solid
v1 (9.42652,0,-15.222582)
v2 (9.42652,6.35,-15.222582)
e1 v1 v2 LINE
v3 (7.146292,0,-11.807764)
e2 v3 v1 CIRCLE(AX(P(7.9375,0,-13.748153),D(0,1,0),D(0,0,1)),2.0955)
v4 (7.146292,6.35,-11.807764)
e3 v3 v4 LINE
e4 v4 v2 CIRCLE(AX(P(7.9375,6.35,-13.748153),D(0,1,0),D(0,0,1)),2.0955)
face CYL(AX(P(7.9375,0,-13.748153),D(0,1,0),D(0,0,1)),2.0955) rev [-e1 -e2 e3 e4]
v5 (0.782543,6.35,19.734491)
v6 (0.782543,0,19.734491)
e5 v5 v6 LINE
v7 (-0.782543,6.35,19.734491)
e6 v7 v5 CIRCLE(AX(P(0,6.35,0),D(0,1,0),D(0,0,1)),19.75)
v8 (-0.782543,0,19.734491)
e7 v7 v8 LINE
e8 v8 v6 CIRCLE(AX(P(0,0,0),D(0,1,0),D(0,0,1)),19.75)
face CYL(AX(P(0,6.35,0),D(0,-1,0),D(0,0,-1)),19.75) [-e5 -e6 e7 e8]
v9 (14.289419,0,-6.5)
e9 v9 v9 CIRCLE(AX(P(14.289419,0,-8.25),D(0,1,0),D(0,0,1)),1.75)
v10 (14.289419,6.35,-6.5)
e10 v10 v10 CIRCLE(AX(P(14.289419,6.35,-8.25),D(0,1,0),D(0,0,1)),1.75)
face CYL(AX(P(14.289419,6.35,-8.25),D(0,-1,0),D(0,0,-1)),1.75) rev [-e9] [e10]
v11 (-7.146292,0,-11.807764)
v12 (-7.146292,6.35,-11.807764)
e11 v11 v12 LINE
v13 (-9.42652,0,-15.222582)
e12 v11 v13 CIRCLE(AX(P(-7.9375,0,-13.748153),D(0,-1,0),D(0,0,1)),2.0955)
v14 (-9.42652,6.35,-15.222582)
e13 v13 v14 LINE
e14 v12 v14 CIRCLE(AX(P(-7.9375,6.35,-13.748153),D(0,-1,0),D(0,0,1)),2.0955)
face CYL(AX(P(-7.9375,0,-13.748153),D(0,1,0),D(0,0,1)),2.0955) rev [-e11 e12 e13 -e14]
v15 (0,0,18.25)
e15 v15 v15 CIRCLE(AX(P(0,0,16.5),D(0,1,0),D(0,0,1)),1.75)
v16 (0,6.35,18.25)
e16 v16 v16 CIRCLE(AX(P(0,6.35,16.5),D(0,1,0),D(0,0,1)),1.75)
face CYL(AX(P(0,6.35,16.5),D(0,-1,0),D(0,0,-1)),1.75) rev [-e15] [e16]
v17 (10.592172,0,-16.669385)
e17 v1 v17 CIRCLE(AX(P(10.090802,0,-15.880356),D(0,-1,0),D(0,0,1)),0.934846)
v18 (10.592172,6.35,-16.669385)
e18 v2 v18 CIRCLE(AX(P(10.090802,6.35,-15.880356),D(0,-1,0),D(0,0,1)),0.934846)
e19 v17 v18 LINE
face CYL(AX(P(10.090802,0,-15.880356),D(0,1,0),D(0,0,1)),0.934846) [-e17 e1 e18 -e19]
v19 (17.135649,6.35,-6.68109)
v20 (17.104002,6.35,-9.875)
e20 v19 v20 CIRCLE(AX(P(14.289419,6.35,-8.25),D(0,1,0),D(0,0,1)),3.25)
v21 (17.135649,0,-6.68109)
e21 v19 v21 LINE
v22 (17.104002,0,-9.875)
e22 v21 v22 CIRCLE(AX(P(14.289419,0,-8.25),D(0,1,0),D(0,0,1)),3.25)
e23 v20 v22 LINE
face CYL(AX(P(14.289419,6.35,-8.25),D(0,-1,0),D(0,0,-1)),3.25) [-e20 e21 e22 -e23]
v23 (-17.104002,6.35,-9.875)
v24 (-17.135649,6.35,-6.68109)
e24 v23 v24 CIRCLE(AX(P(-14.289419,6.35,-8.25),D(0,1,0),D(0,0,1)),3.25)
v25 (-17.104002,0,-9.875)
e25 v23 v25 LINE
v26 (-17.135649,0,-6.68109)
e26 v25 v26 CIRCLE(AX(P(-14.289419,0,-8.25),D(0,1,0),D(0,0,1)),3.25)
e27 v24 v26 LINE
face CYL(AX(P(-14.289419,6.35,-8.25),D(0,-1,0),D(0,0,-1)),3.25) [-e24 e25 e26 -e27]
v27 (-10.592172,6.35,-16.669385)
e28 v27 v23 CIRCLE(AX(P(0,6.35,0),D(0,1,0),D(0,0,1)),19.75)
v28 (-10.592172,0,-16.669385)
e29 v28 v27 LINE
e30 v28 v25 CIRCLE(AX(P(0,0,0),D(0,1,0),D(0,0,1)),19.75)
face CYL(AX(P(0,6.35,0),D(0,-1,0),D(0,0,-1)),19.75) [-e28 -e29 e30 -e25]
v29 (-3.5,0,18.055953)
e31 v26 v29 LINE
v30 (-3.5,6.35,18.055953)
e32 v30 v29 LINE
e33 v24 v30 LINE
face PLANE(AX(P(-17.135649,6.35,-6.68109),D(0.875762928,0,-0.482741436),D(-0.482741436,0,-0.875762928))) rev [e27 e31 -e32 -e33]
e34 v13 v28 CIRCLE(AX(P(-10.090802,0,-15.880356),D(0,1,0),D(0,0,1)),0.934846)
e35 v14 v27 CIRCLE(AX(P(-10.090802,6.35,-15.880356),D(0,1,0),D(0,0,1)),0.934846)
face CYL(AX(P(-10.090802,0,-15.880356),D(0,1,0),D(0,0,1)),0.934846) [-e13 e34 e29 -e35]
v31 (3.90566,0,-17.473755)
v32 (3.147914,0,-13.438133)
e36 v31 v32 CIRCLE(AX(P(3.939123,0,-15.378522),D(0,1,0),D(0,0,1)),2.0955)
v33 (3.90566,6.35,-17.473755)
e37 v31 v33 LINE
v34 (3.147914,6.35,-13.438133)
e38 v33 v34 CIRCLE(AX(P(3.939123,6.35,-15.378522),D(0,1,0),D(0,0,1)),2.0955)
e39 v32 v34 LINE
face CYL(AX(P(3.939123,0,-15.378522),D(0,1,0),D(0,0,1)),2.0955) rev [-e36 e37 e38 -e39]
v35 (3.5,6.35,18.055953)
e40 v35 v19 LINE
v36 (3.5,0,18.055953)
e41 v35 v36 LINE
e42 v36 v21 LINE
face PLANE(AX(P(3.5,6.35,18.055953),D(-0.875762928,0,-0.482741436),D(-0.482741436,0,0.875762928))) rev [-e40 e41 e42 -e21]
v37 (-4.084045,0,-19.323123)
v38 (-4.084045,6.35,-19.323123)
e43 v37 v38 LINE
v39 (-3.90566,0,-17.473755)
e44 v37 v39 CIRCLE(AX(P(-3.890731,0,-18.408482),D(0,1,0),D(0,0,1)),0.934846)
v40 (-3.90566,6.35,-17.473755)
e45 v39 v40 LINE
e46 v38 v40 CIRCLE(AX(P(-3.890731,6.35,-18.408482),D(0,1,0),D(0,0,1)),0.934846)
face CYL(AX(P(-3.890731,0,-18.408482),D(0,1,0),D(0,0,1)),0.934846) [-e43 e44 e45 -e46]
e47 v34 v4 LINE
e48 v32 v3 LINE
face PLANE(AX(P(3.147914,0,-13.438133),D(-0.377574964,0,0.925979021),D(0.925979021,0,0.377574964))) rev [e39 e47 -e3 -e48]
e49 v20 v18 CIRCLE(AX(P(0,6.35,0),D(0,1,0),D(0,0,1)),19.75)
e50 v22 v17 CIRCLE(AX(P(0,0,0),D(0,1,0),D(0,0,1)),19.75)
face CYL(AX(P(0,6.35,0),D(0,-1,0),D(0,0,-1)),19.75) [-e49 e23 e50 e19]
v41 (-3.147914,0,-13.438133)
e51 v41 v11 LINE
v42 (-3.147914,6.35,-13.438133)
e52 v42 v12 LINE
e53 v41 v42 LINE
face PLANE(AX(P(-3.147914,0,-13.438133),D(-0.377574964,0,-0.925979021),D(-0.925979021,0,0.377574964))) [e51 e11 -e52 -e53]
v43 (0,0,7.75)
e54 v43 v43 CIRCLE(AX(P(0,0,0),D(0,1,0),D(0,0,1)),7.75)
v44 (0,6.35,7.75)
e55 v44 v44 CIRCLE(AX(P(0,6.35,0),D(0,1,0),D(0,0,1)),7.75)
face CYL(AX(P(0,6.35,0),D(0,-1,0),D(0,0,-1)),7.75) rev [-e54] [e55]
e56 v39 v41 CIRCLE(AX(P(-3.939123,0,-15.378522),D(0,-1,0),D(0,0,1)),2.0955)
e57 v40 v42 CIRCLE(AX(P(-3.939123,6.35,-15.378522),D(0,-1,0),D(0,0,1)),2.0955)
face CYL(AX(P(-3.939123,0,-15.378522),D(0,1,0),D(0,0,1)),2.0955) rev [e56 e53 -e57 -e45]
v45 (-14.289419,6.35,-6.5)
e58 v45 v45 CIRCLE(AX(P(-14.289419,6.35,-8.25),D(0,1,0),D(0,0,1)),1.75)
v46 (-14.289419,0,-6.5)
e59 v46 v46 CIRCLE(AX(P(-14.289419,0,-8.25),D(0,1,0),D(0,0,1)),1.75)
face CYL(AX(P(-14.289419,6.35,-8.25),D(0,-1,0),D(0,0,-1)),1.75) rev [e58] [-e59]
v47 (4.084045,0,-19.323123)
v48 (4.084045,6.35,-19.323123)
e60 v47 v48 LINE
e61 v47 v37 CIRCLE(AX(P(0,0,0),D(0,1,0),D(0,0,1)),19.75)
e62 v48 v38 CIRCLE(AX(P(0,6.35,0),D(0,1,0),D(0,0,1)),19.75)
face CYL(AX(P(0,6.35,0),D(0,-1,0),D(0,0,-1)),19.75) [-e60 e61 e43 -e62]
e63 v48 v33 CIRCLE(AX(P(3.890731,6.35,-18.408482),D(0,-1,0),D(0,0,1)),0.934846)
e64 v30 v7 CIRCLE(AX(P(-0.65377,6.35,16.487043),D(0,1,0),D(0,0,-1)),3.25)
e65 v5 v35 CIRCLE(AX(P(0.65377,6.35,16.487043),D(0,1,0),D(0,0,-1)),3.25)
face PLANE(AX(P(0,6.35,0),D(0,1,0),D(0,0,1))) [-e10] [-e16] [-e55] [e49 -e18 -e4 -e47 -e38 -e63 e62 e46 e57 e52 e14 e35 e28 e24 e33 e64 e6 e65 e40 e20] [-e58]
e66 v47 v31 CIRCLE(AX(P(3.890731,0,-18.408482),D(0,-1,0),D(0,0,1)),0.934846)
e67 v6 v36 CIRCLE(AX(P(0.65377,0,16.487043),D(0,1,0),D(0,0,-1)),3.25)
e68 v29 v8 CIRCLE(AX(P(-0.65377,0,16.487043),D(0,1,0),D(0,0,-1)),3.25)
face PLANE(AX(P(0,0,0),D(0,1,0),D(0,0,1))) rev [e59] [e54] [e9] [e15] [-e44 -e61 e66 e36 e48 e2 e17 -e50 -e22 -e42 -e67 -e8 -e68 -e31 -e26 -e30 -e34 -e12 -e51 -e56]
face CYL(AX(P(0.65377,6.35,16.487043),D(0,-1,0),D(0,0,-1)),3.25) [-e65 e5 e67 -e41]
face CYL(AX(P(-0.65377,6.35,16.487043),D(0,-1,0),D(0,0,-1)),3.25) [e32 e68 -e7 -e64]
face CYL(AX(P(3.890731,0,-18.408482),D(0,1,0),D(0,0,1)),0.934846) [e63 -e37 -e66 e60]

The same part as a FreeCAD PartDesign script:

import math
import FreeCAD as App
import Part
import Sketcher

V = App.Vector

doc = App.newDocument("Part")
body = doc.addObject("PartDesign::Body", "Body")

sketch1 = body.newObject("Sketcher::SketchObject", "Sketch")
sketch1.AttachmentSupport = (doc.getObject("XZ_Plane"), [""])
sketch1.MapMode = "FlatFace"
sketch1.addGeometry([
    Part.LineSegment(V(-17.1, -6.7, 0), V(-3.5, 18.1, 0)),
    Part.ArcOfCircle(Part.Circle(V(-0.7, 16.5, 0), V(0, 0, 1), 3.2), math.radians(92), math.radians(151)),
    Part.ArcOfCircle(Part.Circle(V(0, 0, 0), V(0, 0, 1), 19.8), math.radians(87.73), math.radians(92.27)),
    Part.ArcOfCircle(Part.Circle(V(0.7, 16.5, 0), V(0, 0, 1), 3.2), math.radians(29), math.radians(88)),
    Part.LineSegment(V(3.5, 18.1, 0), V(17.1, -6.7, 0)),
    Part.ArcOfCircle(Part.Circle(V(14.3, -8.2, 0), V(0, 0, 1), 3.3), math.radians(-30), math.radians(29)),
    Part.ArcOfCircle(Part.Circle(V(0, 0, 0), V(0, 0, 1), 19.8), math.radians(-150), math.radians(-30)),
    Part.ArcOfCircle(Part.Circle(V(-14.3, -8.2, 0), V(0, 0, 1), 3.3), math.radians(151), math.radians(210)),
    Part.Circle(V(0, 16.5, 0), V(0, 0, 1), 1.8),
    Part.Circle(V(-14.3, -8.2, 0), V(0, 0, 1), 1.8),
    Part.Circle(V(0, 0, 0), V(0, 0, 1), 7.8),
    Part.Circle(V(14.3, -8.2, 0), V(0, 0, 1), 1.8),
], False)
sketch1.addConstraint([
    Sketcher.Constraint("Tangent", 0, 2, 1, 2),
    Sketcher.Constraint("Tangent", 1, 1, 2, 2),
    Sketcher.Constraint("Tangent", 2, 1, 3, 2),
    Sketcher.Constraint("Tangent", 3, 1, 4, 1),
    Sketcher.Constraint("Tangent", 4, 2, 5, 2),
    Sketcher.Constraint("Tangent", 5, 1, 6, 2),
    Sketcher.Constraint("Tangent", 6, 1, 7, 2),
    Sketcher.Constraint("Tangent", 7, 1, 0, 1),
    Sketcher.Constraint("Coincident", 2, 3, -1, 1),
    Sketcher.Constraint("Coincident", 6, 3, -1, 1),
    Sketcher.Constraint("Coincident", 10, 3, -1, 1),
    Sketcher.Constraint("Coincident", 9, 3, 7, 3),
    Sketcher.Constraint("Coincident", 11, 3, 5, 3),
    Sketcher.Constraint("Equal", 1, 3),
    Sketcher.Constraint("Equal", 3, 5),
    Sketcher.Constraint("Equal", 2, 6),
    Sketcher.Constraint("Equal", 5, 7),
    Sketcher.Constraint("Equal", 8, 9),
    Sketcher.Constraint("Equal", 9, 11),
    Sketcher.Constraint("Symmetric", 0, 2, 3, 1, -2),
    Sketcher.Constraint("PointOnObject", 8, 3, -2),
    Sketcher.Constraint("Diameter", 8, 3.5),
    Sketcher.Constraint("Diameter", 10, 15.5),
    Sketcher.Constraint("Radius", 1, 3.25),
    Sketcher.Constraint("Radius", 2, 19.750001),
    Sketcher.Constraint("DistanceY", -1, 1, 8, 3, 16.5),
    Sketcher.Constraint("DistanceX", 0, 2, -1, 1, 3.5),
    Sketcher.Constraint("DistanceY", 5, 3, -1, 1, 8.25),
])
pad1 = body.newObject("PartDesign::Pad", "Pad")
pad1.Profile = sketch1
pad1.Length = 6.35
pad1.Reversed = True

sketch2 = body.newObject("Sketcher::SketchObject", "Sketch001")
sketch2.AttachmentSupport = (doc.getObject("XZ_Plane"), [""])
sketch2.MapMode = "FlatFace"
sketch2.AttachmentOffset = App.Placement(V(0, 0, -6.35), App.Rotation())
sketch2.addGeometry([
    Part.LineSegment(V(3.1, -13.4, 0), V(7.1, -11.8, 0)),
    Part.ArcOfCircle(Part.Circle(V(7.9, -13.7, 0), V(0, 0, 1), 2.1), math.radians(-45), math.radians(112)),
    Part.ArcOfCircle(Part.Circle(V(10.1, -15.9, 0), V(0, 0, 1), 0.9), math.radians(135), math.radians(302)),
    Part.ArcOfCircle(Part.Circle(V(0, 0, 0), V(0, 0, 1), 19.8), math.radians(-78), math.radians(-58)),
    Part.ArcOfCircle(Part.Circle(V(3.9, -18.4, 0), V(0, 0, 1), 0.9), math.radians(-78), math.radians(89)),
    Part.ArcOfCircle(Part.Circle(V(3.9, -15.4, 0), V(0, 0, 1), 2.1), math.radians(112), math.radians(269)),
], False)
sketch2.addConstraint([
    Sketcher.Constraint("Tangent", 0, 2, 1, 2),
    Sketcher.Constraint("Tangent", 1, 1, 2, 1),
    Sketcher.Constraint("Tangent", 2, 2, 3, 2),
    Sketcher.Constraint("Tangent", 3, 1, 4, 1),
    Sketcher.Constraint("Tangent", 4, 2, 5, 2),
    Sketcher.Constraint("Tangent", 5, 1, 0, 1),
    Sketcher.Constraint("Coincident", 3, 3, -1, 1),
    Sketcher.Constraint("Equal", 2, 4),
    Sketcher.Constraint("Equal", 1, 5),
    Sketcher.Constraint("Radius", 3, 19.75),
    Sketcher.Constraint("Radius", 1, 2.0955),
    Sketcher.Constraint("Distance", 0, 4.318),
    Sketcher.Constraint("Radius", 2, 0.934846),
    Sketcher.Constraint("DistanceX", -1, 1, 1, 3, 7.9375),
    Sketcher.Constraint("DistanceY", 4, 3, 1, 1, 3.1859),
    Sketcher.Constraint("DistanceY", 4, 2, 1, 3, 3.725601),
])
pocket1 = body.newObject("PartDesign::Pocket", "Pocket")
pocket1.Profile = sketch2
pocket1.Type = "ThroughAll"
pocket1.Reversed = True
doc.recompute()

mirrored = body.newObject("PartDesign::Mirrored", "Mirrored")
mirrored.Originals = [pocket1]
mirrored.MirrorPlane = (doc.getObject("YZ_Plane"), [""])
body.Tip = mirrored

doc.recompute()
